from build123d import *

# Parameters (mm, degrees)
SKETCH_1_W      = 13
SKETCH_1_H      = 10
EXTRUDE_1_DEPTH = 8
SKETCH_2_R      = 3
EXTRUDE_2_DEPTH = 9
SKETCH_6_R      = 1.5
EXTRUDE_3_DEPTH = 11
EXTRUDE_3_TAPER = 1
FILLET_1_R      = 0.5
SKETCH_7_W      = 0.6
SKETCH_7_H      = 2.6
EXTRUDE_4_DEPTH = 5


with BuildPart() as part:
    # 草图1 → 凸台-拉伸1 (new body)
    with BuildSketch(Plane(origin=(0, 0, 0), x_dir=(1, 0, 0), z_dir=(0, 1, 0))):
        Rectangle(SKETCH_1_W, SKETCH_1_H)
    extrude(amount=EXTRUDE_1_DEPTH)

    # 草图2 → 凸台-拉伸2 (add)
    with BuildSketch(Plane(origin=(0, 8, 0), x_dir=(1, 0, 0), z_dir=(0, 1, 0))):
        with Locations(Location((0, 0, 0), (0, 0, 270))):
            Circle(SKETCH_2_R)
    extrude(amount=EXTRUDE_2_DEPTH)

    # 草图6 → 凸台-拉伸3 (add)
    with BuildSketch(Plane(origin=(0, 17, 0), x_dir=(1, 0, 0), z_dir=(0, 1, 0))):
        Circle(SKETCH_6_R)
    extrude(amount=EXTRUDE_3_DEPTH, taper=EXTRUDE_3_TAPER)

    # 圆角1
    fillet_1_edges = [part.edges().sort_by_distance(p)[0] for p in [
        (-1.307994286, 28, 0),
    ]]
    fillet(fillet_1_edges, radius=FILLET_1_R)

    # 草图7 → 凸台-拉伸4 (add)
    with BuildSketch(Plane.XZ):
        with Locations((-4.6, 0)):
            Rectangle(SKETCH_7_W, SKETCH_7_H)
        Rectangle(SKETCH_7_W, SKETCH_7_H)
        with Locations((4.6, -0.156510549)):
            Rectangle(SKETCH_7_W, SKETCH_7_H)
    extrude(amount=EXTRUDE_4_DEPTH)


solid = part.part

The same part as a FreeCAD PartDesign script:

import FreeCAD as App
import Part
import Sketcher


def edges_at(feature, points):
    """Names of the edges that pass closest to the given points."""
    edges = feature.Shape.Edges
    near = lambda p: min(range(len(edges)), key=lambda i: edges[i].distToShape(Part.Vertex(*p))[0])
    return sorted({f"Edge{near(p) + 1}" for p in points})

doc = App.newDocument("Part")
body = doc.addObject("PartDesign::Body", "Body")

# Sketch on XZ plane
sketch1 = body.newObject("Sketcher::SketchObject", "Sketch")
sketch1.AttachmentSupport = (doc.getObject("XZ_Plane"), [""])
sketch1.MapMode = "FlatFace"
sketch1.addGeometry(Part.LineSegment(App.Vector(-6.5, -5, 0), App.Vector(-6.5, 5, 0)), False)
sketch1.addGeometry(Part.LineSegment(App.Vector(-6.5, 5, 0), App.Vector(6.5, 5, 0)), False)
sketch1.addGeometry(Part.LineSegment(App.Vector(6.5, 5, 0), App.Vector(6.5, -5, 0)), False)
sketch1.addGeometry(Part.LineSegment(App.Vector(6.5, -5, 0), App.Vector(-6.5, -5, 0)), False)
sketch1.addConstraint(Sketcher.Constraint("Coincident", 0, 2, 1, 1))
sketch1.addConstraint(Sketcher.Constraint("Coincident", 1, 2, 2, 1))
sketch1.addConstraint(Sketcher.Constraint("Coincident", 2, 2, 3, 1))
sketch1.addConstraint(Sketcher.Constraint("Coincident", 3, 2, 0, 1))
sketch1.addConstraint(Sketcher.Constraint("Vertical", 0))
sketch1.addConstraint(Sketcher.Constraint("Horizontal", 1))
sketch1.addConstraint(Sketcher.Constraint("Vertical", 2))
sketch1.addConstraint(Sketcher.Constraint("Horizontal", 3))
sketch1.addConstraint(Sketcher.Constraint("Symmetric", 0, 2, 2, 2, -1, 1))
sketch1.addConstraint(Sketcher.Constraint("DistanceX", 1, 1, 1, 2, 13.0))
sketch1.addConstraint(Sketcher.Constraint("DistanceY", 0, 1, 0, 2, 10.0))
pad1 = body.newObject("PartDesign::Pad", "Pad")
pad1.Profile = sketch1
pad1.Length = 8
pad1.Reversed = True

# Sketch on XZ plane
sketch2 = body.newObject("Sketcher::SketchObject", "Sketch001")
sketch2.AttachmentSupport = (doc.getObject("XZ_Plane"), [""])
sketch2.MapMode = "FlatFace"
sketch2.AttachmentOffset = App.Placement(App.Vector(0, 0, -8), App.Rotation())
sketch2.addGeometry(Part.Circle(App.Vector(0, 0, 0), App.Vector(0, 0, 1), 3), False)
sketch2.addConstraint(Sketcher.Constraint("Coincident", 0, 3, -1, 1))
sketch2.addConstraint(Sketcher.Constraint("Diameter", 0, 6.0))
pad2 = body.newObject("PartDesign::Pad", "Pad001")
pad2.Profile = sketch2
pad2.Length = 9
pad2.Reversed = True

# Sketch on XZ plane
sketch3 = body.newObject("Sketcher::SketchObject", "Sketch002")
sketch3.AttachmentSupport = (doc.getObject("XZ_Plane"), [""])
sketch3.MapMode = "FlatFace"
sketch3.AttachmentOffset = App.Placement(App.Vector(0, 0, -17), App.Rotation())
sketch3.addGeometry(Part.Circle(App.Vector(0, 0, 0), App.Vector(0, 0, 1), 1.5), False)
sketch3.addConstraint(Sketcher.Constraint("Coincident", 0, 3, -1, 1))
sketch3.addConstraint(Sketcher.Constraint("Diameter", 0, 3.0))
pad3 = body.newObject("PartDesign::Pad", "Pad002")
pad3.Profile = sketch3
pad3.Length = 11
pad3.Reversed = True
pad3.TaperAngle = -1
doc.recompute()

fillet = body.newObject("PartDesign::Fillet", "Fillet")
fillet.Base = (pad3, edges_at(pad3, [(-1.308, 28, 0)]))
fillet.Radius = 0.5

# Sketch on XZ plane
sketch4 = body.newObject("Sketcher::SketchObject", "Sketch003")
sketch4.AttachmentSupport = (doc.getObject("XZ_Plane"), [""])
sketch4.MapMode = "FlatFace"
sketch4.addGeometry(Part.LineSegment(App.Vector(-4.9, 1.3, 0), App.Vector(-4.9, -1.3, 0)), False)
sketch4.addGeometry(Part.LineSegment(App.Vector(-4.9, -1.3, 0), App.Vector(-4.3, -1.3, 0)), False)
sketch4.addGeometry(Part.LineSegment(App.Vector(-4.3, -1.3, 0), App.Vector(-4.3, 1.3, 0)), False)
sketch4.addGeometry(Part.LineSegment(App.Vector(-4.3, 1.3, 0), App.Vector(-4.9, 1.3, 0)), False)
sketch4.addGeometry(Part.LineSegment(App.Vector(-0.3, 1.3, 0), App.Vector(-0.3, -1.3, 0)), False)
sketch4.addGeometry(Part.LineSegment(App.Vector(-0.3, -1.3, 0), App.Vector(0.3, -1.3, 0)), False)
sketch4.addGeometry(Part.LineSegment(App.Vector(0.3, -1.3, 0), App.Vector(0.3, 1.3, 0)), False)
sketch4.addGeometry(Part.LineSegment(App.Vector(0.3, 1.3, 0), App.Vector(-0.3, 1.3, 0)), False)
sketch4.addGeometry(Part.LineSegment(App.Vector(4.3, 1.143489, 0), App.Vector(4.3, -1.456511, 0)), False)
sketch4.addGeometry(Part.LineSegment(App.Vector(4.3, -1.456511, 0), App.Vector(4.9, -1.456511, 0)), False)
sketch4.addGeometry(Part.LineSegment(App.Vector(4.9, -1.456511, 0), App.Vector(4.9, 1.143489, 0)), False)
sketch4.addGeometry(Part.LineSegment(App.Vector(4.9, 1.143489, 0), App.Vector(4.3, 1.143489, 0)), False)
sketch4.addConstraint(Sketcher.Constraint("Coincident", 0, 2, 1, 1))
sketch4.addConstraint(Sketcher.Constraint("Coincident", 1, 2, 2, 1))
sketch4.addConstraint(Sketcher.Constraint("Coincident", 2, 2, 3, 1))
sketch4.addConstraint(Sketcher.Constraint("Coincident", 3, 2, 0, 1))
sketch4.addConstraint(Sketcher.Constraint("Coincident", 4, 2, 5, 1))
sketch4.addConstraint(Sketcher.Constraint("Coincident", 5, 2, 6, 1))
sketch4.addConstraint(Sketcher.Constraint("Coincident", 6, 2, 7, 1))
sketch4.addConstraint(Sketcher.Constraint("Coincident", 7, 2, 4, 1))
sketch4.addConstraint(Sketcher.Constraint("Coincident", 8, 2, 9, 1))
sketch4.addConstraint(Sketcher.Constraint("Coincident", 9, 2, 10, 1))
sketch4.addConstraint(Sketcher.Constraint("Coincident", 10, 2, 11, 1))
sketch4.addConstraint(Sketcher.Constraint("Coincident", 11, 2, 8, 1))
sketch4.addConstraint(Sketcher.Constraint("Vertical", 0))
sketch4.addConstraint(Sketcher.Constraint("Horizontal", 1))
sketch4.addConstraint(Sketcher.Constraint("Vertical", 2))
sketch4.addConstraint(Sketcher.Constraint("Horizontal", 3))
sketch4.addConstraint(Sketcher.Constraint("Vertical", 4))
sketch4.addConstraint(Sketcher.Constraint("Horizontal", 5))
sketch4.addConstraint(Sketcher.Constraint("Vertical", 6))
sketch4.addConstraint(Sketcher.Constraint("Horizontal", 7))
sketch4.addConstraint(Sketcher.Constraint("Vertical", 8))
sketch4.addConstraint(Sketcher.Constraint("Horizontal", 9))
sketch4.addConstraint(Sketcher.Constraint("Vertical", 10))
sketch4.addConstraint(Sketcher.Constraint("Horizontal", 11))
sketch4.addConstraint(Sketcher.Constraint("Symmetric", 4, 2, 6, 2, -1, 1))
sketch4.addConstraint(Sketcher.Constraint("Horizontal", 1, 2, 4, 2))
sketch4.addConstraint(Sketcher.Constraint("Horizontal", 3, 2, 6, 2))
sketch4.addConstraint(Sketcher.Constraint("Equal", 3, 5))
sketch4.addConstraint(Sketcher.Constraint("Equal", 7, 9))
sketch4.addConstraint(Sketcher.Constraint("Equal", 6, 8))
sketch4.addConstraint(Sketcher.Constraint("DistanceX", 1, 1, 1, 2, 0.6))
sketch4.addConstraint(Sketcher.Constraint("DistanceY", 0, 2, 0, 1, 2.6))
sketch4.addConstraint(Sketcher.Constraint("DistanceX", 1, 2, 4, 2, 4.0))
sketch4.addConstraint(Sketcher.Constraint("DistanceX", 5, 2, 8, 2, 4.0))
sketch4.addConstraint(Sketcher.Constraint("DistanceY", 8, 2, -1, 1, 1.456511))
pad4 = body.newObject("PartDesign::Pad", "Pad003")
pad4.Profile = sketch4
pad4.Length = 5

doc.recompute()
